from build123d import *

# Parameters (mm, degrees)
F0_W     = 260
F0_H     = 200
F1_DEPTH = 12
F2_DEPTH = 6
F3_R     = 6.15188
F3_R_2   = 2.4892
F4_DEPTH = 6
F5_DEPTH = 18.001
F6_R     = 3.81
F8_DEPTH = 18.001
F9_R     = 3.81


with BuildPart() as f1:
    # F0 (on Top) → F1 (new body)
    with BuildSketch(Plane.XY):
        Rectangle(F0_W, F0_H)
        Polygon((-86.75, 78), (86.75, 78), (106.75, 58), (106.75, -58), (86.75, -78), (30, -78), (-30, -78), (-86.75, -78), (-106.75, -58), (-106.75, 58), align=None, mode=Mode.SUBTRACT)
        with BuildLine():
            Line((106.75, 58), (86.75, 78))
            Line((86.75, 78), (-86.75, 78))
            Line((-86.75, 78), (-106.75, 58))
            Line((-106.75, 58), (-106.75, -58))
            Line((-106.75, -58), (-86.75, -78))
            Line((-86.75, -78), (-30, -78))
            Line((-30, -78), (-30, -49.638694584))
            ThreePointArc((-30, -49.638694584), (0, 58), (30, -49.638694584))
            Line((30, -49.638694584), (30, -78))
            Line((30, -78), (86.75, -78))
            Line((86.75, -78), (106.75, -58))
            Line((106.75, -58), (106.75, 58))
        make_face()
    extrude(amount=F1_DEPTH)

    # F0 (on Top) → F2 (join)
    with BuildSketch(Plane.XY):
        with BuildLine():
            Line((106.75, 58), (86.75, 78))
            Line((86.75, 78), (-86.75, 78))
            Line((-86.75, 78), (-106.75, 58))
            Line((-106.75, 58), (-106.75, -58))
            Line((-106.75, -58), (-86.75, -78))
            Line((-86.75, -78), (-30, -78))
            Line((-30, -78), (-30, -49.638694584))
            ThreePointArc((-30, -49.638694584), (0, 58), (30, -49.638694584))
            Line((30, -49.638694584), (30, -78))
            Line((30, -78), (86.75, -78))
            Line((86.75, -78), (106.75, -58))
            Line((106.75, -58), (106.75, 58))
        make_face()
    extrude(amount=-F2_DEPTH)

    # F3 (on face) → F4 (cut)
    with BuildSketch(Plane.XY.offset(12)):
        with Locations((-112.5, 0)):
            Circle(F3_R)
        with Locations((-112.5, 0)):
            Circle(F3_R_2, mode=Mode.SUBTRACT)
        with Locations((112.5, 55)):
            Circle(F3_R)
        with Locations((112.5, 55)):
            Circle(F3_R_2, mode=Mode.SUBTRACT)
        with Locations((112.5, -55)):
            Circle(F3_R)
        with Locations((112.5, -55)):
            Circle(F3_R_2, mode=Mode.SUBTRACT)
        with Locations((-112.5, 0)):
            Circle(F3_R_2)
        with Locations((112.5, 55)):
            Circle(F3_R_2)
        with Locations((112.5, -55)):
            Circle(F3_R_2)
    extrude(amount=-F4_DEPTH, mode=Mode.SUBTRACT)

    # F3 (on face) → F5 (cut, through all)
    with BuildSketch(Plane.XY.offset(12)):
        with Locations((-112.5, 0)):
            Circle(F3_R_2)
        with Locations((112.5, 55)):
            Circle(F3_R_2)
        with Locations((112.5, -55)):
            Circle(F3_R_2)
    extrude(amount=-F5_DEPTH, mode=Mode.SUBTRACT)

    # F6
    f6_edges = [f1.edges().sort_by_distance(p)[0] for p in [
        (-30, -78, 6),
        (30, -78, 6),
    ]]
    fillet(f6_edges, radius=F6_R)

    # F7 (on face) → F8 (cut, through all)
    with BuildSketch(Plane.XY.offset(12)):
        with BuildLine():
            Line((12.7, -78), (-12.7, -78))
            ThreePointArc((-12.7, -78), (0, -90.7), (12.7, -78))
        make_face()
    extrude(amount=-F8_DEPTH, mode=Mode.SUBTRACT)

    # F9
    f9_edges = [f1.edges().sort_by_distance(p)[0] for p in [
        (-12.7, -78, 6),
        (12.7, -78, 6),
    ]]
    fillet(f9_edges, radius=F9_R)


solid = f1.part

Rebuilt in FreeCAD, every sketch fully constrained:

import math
import FreeCAD as App
import Part
import Sketcher

V = App.Vector
Q = App.Units.Quantity


def edges_at(feature, points):
    """Names of the edges that pass closest to the given points."""
    edges = feature.Shape.Edges
    near = lambda p: min(range(len(edges)), key=lambda i: edges[i].distToShape(Part.Vertex(*p))[0])
    return sorted({f"Edge{near(p) + 1}" for p in points})

doc = App.newDocument("Part")
body = doc.addObject("PartDesign::Body", "Body")

sketch1 = body.newObject("Sketcher::SketchObject", "Sketch")
sketch1.AttachmentSupport = (doc.getObject("XY_Plane"), [""])
sketch1.MapMode = "FlatFace"
sketch1.addGeometry([
    Part.LineSegment(V(-130, 100, 0), V(-130, -100, 0)),
    Part.LineSegment(V(-130, -100, 0), V(130, -100, 0)),
    Part.LineSegment(V(130, -100, 0), V(130, 100, 0)),
    Part.LineSegment(V(130, 100, 0), V(-130, 100, 0)),
    Part.LineSegment(V(30, -78, 0), V(-30, -78, 0)),
    Part.LineSegment(V(-30, -78, 0), V(-30, -50, 0)),
    Part.ArcOfCircle(Part.Circle(V(0, 0, 0), V(0, 0, 1), 58), math.radians(-59), math.radians(239)),
    Part.LineSegment(V(30, -50, 0), V(30, -78, 0)),
], False)
sketch1.addConstraint([
    Sketcher.Constraint("Coincident", 0, 2, 1, 1),
    Sketcher.Constraint("Coincident", 1, 2, 2, 1),
    Sketcher.Constraint("Coincident", 2, 2, 3, 1),
    Sketcher.Constraint("Coincident", 3, 2, 0, 1),
    Sketcher.Constraint("Coincident", 4, 2, 5, 1),
    Sketcher.Constraint("Coincident", 5, 2, 6, 2),
    Sketcher.Constraint("Coincident", 6, 1, 7, 1),
    Sketcher.Constraint("Coincident", 7, 2, 4, 1),
    Sketcher.Constraint("Vertical", 0),
    Sketcher.Constraint("Horizontal", 1),
    Sketcher.Constraint("Vertical", 2),
    Sketcher.Constraint("Horizontal", 3),
    Sketcher.Constraint("Horizontal", 4),
    Sketcher.Constraint("Vertical", 5),
    Sketcher.Constraint("Vertical", 7),
    Sketcher.Constraint("Coincident", 6, 3, -1, 1),
    Sketcher.Constraint("Symmetric", 0, 2, 2, 2, -1, 1),
    Sketcher.Constraint("Horizontal", 5, 2, 6, 1),
    Sketcher.Constraint("Radius", 6, Q("58 mm")),
    Sketcher.Constraint("DistanceX", 1, 1, 1, 2, Q("260 mm")),
    Sketcher.Constraint("DistanceX", 4, 2, 4, 1, Q("60 mm")),
    Sketcher.Constraint("DistanceY", 0, 2, 0, 1, Q("200 mm")),
    Sketcher.Constraint("DistanceY", 4, 2, -1, 1, Q("78 mm")),
])
pad1 = body.newObject("PartDesign::Pad", "Pad")
pad1.Profile = sketch1
pad1.Length = 12

sketch2 = body.newObject("Sketcher::SketchObject", "Sketch001")
sketch2.AttachmentSupport = (doc.getObject("XY_Plane"), [""])
sketch2.MapMode = "FlatFace"
sketch2.addGeometry([
    Part.LineSegment(V(107, 58, 0), V(87, 78, 0)),
    Part.LineSegment(V(87, 78, 0), V(-87, 78, 0)),
    Part.LineSegment(V(-87, 78, 0), V(-107, 58, 0)),
    Part.LineSegment(V(-107, 58, 0), V(-107, -58, 0)),
    Part.LineSegment(V(-107, -58, 0), V(-87, -78, 0)),
    Part.LineSegment(V(-87, -78, 0), V(-30, -78, 0)),
    Part.LineSegment(V(-30, -78, 0), V(-30, -50, 0)),
    Part.ArcOfCircle(Part.Circle(V(0, 0, 0), V(0, 0, 1), 58), math.radians(-59), math.radians(239)),
    Part.LineSegment(V(30, -50, 0), V(30, -78, 0)),
    Part.LineSegment(V(30, -78, 0), V(87, -78, 0)),
    Part.LineSegment(V(87, -78, 0), V(107, -58, 0)),
    Part.LineSegment(V(107, -58, 0), V(107, 58, 0)),
], False)
sketch2.addConstraint([
    Sketcher.Constraint("Coincident", 0, 2, 1, 1),
    Sketcher.Constraint("Coincident", 1, 2, 2, 1),
    Sketcher.Constraint("Coincident", 2, 2, 3, 1),
    Sketcher.Constraint("Coincident", 3, 2, 4, 1),
    Sketcher.Constraint("Coincident", 4, 2, 5, 1),
    Sketcher.Constraint("Coincident", 5, 2, 6, 1),
    Sketcher.Constraint("Coincident", 6, 2, 7, 2),
    Sketcher.Constraint("Coincident", 7, 1, 8, 1),
    Sketcher.Constraint("Coincident", 8, 2, 9, 1),
    Sketcher.Constraint("Coincident", 9, 2, 10, 1),
    Sketcher.Constraint("Coincident", 10, 2, 11, 1),
    Sketcher.Constraint("Coincident", 11, 2, 0, 1),
    Sketcher.Constraint("Horizontal", 1),
    Sketcher.Constraint("Vertical", 3),
    Sketcher.Constraint("Horizontal", 5),
    Sketcher.Constraint("Vertical", 6),
    Sketcher.Constraint("Vertical", 8),
    Sketcher.Constraint("Horizontal", 9),
    Sketcher.Constraint("Vertical", 11),
    Sketcher.Constraint("Coincident", 7, 3, -1, 1),
    Sketcher.Constraint("Symmetric", 0, 2, 4, 2, -1, 1),
    Sketcher.Constraint("Symmetric", 1, 2, 9, 2, -1, 1),
    Sketcher.Constraint("Symmetric", 2, 2, 10, 2, -1, 1),
    Sketcher.Constraint("Perpendicular", 0, 2),
    Sketcher.Constraint("Perpendicular", 2, 4),
    Sketcher.Constraint("Horizontal", 6, 2, 7, 1),
    Sketcher.Constraint("Horizontal", 3, 2, 10, 2),
    Sketcher.Constraint("Vertical", 1, 2, 4, 2),
    Sketcher.Constraint("Radius", 7, Q("58 mm")),
    Sketcher.Constraint("DistanceY", 3, 2, 3, 1, Q("116 mm")),
    Sketcher.Constraint("DistanceX", 1, 2, 1, 1, Q("173.5 mm")),
    Sketcher.Constraint("DistanceY", -1, 1, 0, 2, Q("78 mm")),
    Sketcher.Constraint("DistanceX", 5, 2, -1, 1, Q("30 mm")),
])
pad2 = body.newObject("PartDesign::Pad", "Pad001")
pad2.Profile = sketch2
pad2.Length = 6
pad2.Reversed = True

sketch3 = body.newObject("Sketcher::SketchObject", "Sketch002")
sketch3.AttachmentSupport = (doc.getObject("XY_Plane"), [""])
sketch3.MapMode = "FlatFace"
sketch3.AttachmentOffset = App.Placement(V(0, 0, 12), App.Rotation())
sketch3.addGeometry([
    Part.Circle(V(-112, 0, 0), V(0, 0, 1), 6),
    Part.Circle(V(112, 55, 0), V(0, 0, 1), 6),
    Part.Circle(V(112, -55, 0), V(0, 0, 1), 6),
], False)
sketch3.addConstraint([
    Sketcher.Constraint("Equal", 0, 1),
    Sketcher.Constraint("Equal", 1, 2),
    Sketcher.Constraint("Symmetric", 1, 3, 2, 3, -1),
    Sketcher.Constraint("PointOnObject", 0, 3, -1),
    Sketcher.Constraint("DistanceY", -1, 1, 1, 3, Q("55 mm")),
    Sketcher.Constraint("DistanceX", 0, 3, 1, 3, Q("225 mm")),
    Sketcher.Constraint("DistanceX", 0, 3, -1, 1, Q("112.5 mm")),
    Sketcher.Constraint("Diameter", 0, Q("12.30376 mm")),
])
pocket1 = body.newObject("PartDesign::Pocket", "Pocket")
pocket1.Profile = sketch3
pocket1.Length = 6

sketch4 = body.newObject("Sketcher::SketchObject", "Sketch003")
sketch4.AttachmentSupport = (doc.getObject("XY_Plane"), [""])
sketch4.MapMode = "FlatFace"
sketch4.AttachmentOffset = App.Placement(V(0, 0, 12), App.Rotation())
sketch4.addGeometry([
    Part.Circle(V(-112.5, 0, 0), V(0, 0, 1), 2.5),
    Part.Circle(V(112.5, 55, 0), V(0, 0, 1), 2.5),
    Part.Circle(V(112.5, -55, 0), V(0, 0, 1), 2.5),
], False)
sketch4.addConstraint([
    Sketcher.Constraint("Equal", 0, 1),
    Sketcher.Constraint("Equal", 1, 2),
    Sketcher.Constraint("Symmetric", 1, 3, 2, 3, -1),
    Sketcher.Constraint("PointOnObject", 0, 3, -1),
    Sketcher.Constraint("DistanceY", -1, 1, 1, 3, Q("55 mm")),
    Sketcher.Constraint("DistanceX", 0, 3, 1, 3, Q("225 mm")),
    Sketcher.Constraint("Diameter", 0, Q("4.9784 mm")),
    Sketcher.Constraint("DistanceX", 0, 3, -1, 1, Q("112.5 mm")),
])
pocket2 = body.newObject("PartDesign::Pocket", "Pocket001")
pocket2.Profile = sketch4
pocket2.Type = "ThroughAll"
doc.recompute()

fillet = body.newObject("PartDesign::Fillet", "Fillet")
fillet.Base = (pocket2, edges_at(pocket2, [(-30, -78, 6), (30, -78, 6)]))
fillet.Radius = 3.81

sketch5 = body.newObject("Sketcher::SketchObject", "Sketch004")
sketch5.AttachmentSupport = (doc.getObject("XY_Plane"), [""])
sketch5.MapMode = "FlatFace"
sketch5.AttachmentOffset = App.Placement(V(0, 0, 12), App.Rotation())
sketch5.addGeometry([
    Part.LineSegment(V(13, -78, 0), V(-13, -78, 0)),
    Part.ArcOfCircle(Part.Circle(V(0, -78, 0), V(0, 0, 1), 13), math.radians(180), math.radians(360)),
], False)
sketch5.addConstraint([
    Sketcher.Constraint("Coincident", 0, 1, 1, 2),
    Sketcher.Constraint("Coincident", 1, 1, 0, 2),
    Sketcher.Constraint("Horizontal", 0),
    Sketcher.Constraint("PointOnObject", 1, 3, -2),
    Sketcher.Constraint("Horizontal", 1, 3, 0, 1),
    Sketcher.Constraint("Radius", 1, Q("12.7 mm")),
    Sketcher.Constraint("DistanceY", 1, 3, -1, 1, Q("78 mm")),
])
pocket3 = body.newObject("PartDesign::Pocket", "Pocket002")
pocket3.Profile = sketch5
pocket3.Type = "ThroughAll"
doc.recompute()

fillet2 = body.newObject("PartDesign::Fillet", "Fillet001")
fillet2.Base = (pocket3, edges_at(pocket3, [(-12.7, -78, 6), (12.7, -78, 6)]))
fillet2.Radius = 3.81

doc.recompute()
